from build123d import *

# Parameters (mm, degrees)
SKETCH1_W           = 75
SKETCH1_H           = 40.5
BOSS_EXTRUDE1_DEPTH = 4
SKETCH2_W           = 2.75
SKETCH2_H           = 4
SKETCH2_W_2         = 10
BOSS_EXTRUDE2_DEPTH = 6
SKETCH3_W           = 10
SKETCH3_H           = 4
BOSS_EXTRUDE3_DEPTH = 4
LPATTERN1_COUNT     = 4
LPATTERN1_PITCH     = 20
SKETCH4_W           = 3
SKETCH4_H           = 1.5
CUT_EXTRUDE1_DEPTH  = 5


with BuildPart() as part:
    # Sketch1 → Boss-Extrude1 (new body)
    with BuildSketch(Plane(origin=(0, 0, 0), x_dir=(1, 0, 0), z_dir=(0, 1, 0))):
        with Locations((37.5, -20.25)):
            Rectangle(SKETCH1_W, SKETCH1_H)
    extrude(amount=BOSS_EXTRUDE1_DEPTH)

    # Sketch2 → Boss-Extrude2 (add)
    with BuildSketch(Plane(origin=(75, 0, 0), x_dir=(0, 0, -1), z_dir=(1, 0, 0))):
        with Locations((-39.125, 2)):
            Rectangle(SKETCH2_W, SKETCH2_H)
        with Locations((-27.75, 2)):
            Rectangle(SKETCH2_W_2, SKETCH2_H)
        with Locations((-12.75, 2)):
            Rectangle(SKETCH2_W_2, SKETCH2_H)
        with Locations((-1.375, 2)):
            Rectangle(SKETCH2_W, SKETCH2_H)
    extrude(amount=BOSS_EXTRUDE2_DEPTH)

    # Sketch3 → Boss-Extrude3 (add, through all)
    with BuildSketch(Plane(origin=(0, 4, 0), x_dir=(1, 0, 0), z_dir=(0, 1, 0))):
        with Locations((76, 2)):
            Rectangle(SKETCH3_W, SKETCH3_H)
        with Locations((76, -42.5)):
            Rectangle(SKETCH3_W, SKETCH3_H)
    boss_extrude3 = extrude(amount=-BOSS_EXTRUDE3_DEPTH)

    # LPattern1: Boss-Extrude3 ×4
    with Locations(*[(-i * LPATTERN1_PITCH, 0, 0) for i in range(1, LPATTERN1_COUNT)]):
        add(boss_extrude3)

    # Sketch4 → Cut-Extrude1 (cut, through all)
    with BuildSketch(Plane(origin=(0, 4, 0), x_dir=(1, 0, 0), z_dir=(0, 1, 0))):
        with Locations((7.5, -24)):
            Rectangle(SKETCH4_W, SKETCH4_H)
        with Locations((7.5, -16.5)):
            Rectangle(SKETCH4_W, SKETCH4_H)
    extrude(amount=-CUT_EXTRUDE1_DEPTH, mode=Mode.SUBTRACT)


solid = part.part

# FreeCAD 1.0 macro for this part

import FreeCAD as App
import Part
import Sketcher

doc = App.newDocument("Part")
params = doc.addObject("Spreadsheet::Sheet", "Params")
for row, (alias, value) in enumerate([
    ("sketch1_width", "75 mm"),
    ("sketch1_height", "40.5 mm"),
    ("pad1_length", "4 mm"),
    ("sketch2_width", "4 mm"),
    ("sketch2_height", "10 mm"),
    ("sketch2_height2", "2.75 mm"),
    ("pad2_length", "6 mm"),
    ("sketch3_width", "10 mm"),
    ("sketch3_height", "4 mm"),
    ("pad3_length", "4 mm"),
    ("linearpattern_pitch", "20 mm"),
    ("sketch4_width", "3 mm"),
    ("sketch4_height", "1.5 mm"),
], start=1):
    params.set(f"A{row}", alias)
    params.set(f"B{row}", "=" + value)
    params.setAlias(f"B{row}", alias)

body = doc.addObject("PartDesign::Body", "Body")

sketch1 = body.newObject("Sketcher::SketchObject", "Sketch")
sketch1.AttachmentSupport = (doc.getObject("XZ_Plane"), [""])
sketch1.MapMode = "FlatFace"
sketch1.addGeometry([
    Part.LineSegment(App.Vector(0, 0, 0), App.Vector(0, 40.5, 0)),
    Part.LineSegment(App.Vector(0, 40.5, 0), App.Vector(75, 40.5, 0)),
    Part.LineSegment(App.Vector(75, 40.5, 0), App.Vector(75, 0, 0)),
    Part.LineSegment(App.Vector(75, 0, 0), App.Vector(0, 0, 0)),
], False)
sketch1.addConstraint([
    Sketcher.Constraint("Coincident", 0, 2, 1, 1),
    Sketcher.Constraint("Coincident", 1, 2, 2, 1),
    Sketcher.Constraint("Coincident", 2, 2, 3, 1),
    Sketcher.Constraint("Coincident", 3, 2, 0, 1),
    Sketcher.Constraint("Vertical", 0),
    Sketcher.Constraint("Horizontal", 1),
    Sketcher.Constraint("Vertical", 2),
    Sketcher.Constraint("Horizontal", 3),
    Sketcher.Constraint("Coincident", 3, 2, -1, 1),
    Sketcher.Constraint("DistanceX", 1, 1, 1, 2, 75.0),
    Sketcher.Constraint("DistanceY", 0, 1, 0, 2, 40.5),
])
sketch1.setExpression("Constraints[9]", "Params.sketch1_width")
sketch1.setExpression("Constraints[10]", "Params.sketch1_height")
pad1 = body.newObject("PartDesign::Pad", "Pad")
pad1.Profile = sketch1
pad1.setExpression("Length", "Params.pad1_length")
pad1.Reversed = True

sketch2 = body.newObject("Sketcher::SketchObject", "Sketch001")
sketch2.AttachmentSupport = (doc.getObject("YZ_Plane"), [""])
sketch2.MapMode = "FlatFace"
sketch2.AttachmentOffset = App.Placement(App.Vector(0, 0, 75), App.Rotation())
sketch2.addGeometry([
    Part.LineSegment(App.Vector(4, 40.5, 0), App.Vector(0, 40.5, 0)),
    Part.LineSegment(App.Vector(0, 40.5, 0), App.Vector(0, 37.75, 0)),
    Part.LineSegment(App.Vector(0, 37.75, 0), App.Vector(4, 37.75, 0)),
    Part.LineSegment(App.Vector(4, 37.75, 0), App.Vector(4, 40.5, 0)),
    Part.LineSegment(App.Vector(4, 32.75, 0), App.Vector(0, 32.75, 0)),
    Part.LineSegment(App.Vector(0, 32.75, 0), App.Vector(0, 22.75, 0)),
    Part.LineSegment(App.Vector(0, 22.75, 0), App.Vector(4, 22.75, 0)),
    Part.LineSegment(App.Vector(4, 22.75, 0), App.Vector(4, 32.75, 0)),
    Part.LineSegment(App.Vector(4, 17.75, 0), App.Vector(0, 17.75, 0)),
    Part.LineSegment(App.Vector(0, 17.75, 0), App.Vector(0, 7.75, 0)),
    Part.LineSegment(App.Vector(0, 7.75, 0), App.Vector(4, 7.75, 0)),
    Part.LineSegment(App.Vector(4, 7.75, 0), App.Vector(4, 17.75, 0)),
    Part.LineSegment(App.Vector(4, 2.75, 0), App.Vector(0, 2.75, 0)),
    Part.LineSegment(App.Vector(0, 2.75, 0), App.Vector(0, 0, 0)),
    Part.LineSegment(App.Vector(0, 0, 0), App.Vector(4, 0, 0)),
    Part.LineSegment(App.Vector(4, 0, 0), App.Vector(4, 2.75, 0)),
], False)
sketch2.addConstraint([
    Sketcher.Constraint("Coincident", 0, 2, 1, 1),
    Sketcher.Constraint("Coincident", 1, 2, 2, 1),
    Sketcher.Constraint("Coincident", 2, 2, 3, 1),
    Sketcher.Constraint("Coincident", 3, 2, 0, 1),
    Sketcher.Constraint("Coincident", 4, 2, 5, 1),
    Sketcher.Constraint("Coincident", 5, 2, 6, 1),
    Sketcher.Constraint("Coincident", 6, 2, 7, 1),
    Sketcher.Constraint("Coincident", 7, 2, 4, 1),
    Sketcher.Constraint("Coincident", 8, 2, 9, 1),
    Sketcher.Constraint("Coincident", 9, 2, 10, 1),
    Sketcher.Constraint("Coincident", 10, 2, 11, 1),
    Sketcher.Constraint("Coincident", 11, 2, 8, 1),
    Sketcher.Constraint("Coincident", 12, 2, 13, 1),
    Sketcher.Constraint("Coincident", 13, 2, 14, 1),
    Sketcher.Constraint("Coincident", 14, 2, 15, 1),
    Sketcher.Constraint("Coincident", 15, 2, 12, 1),
    Sketcher.Constraint("Horizontal", 0),
    Sketcher.Constraint("Vertical", 1),
    Sketcher.Constraint("Horizontal", 2),
    Sketcher.Constraint("Vertical", 3),
    Sketcher.Constraint("Horizontal", 4),
    Sketcher.Constraint("Vertical", 5),
    Sketcher.Constraint("Horizontal", 6),
    Sketcher.Constraint("Vertical", 7),
    Sketcher.Constraint("Horizontal", 8),
    Sketcher.Constraint("Vertical", 9),
    Sketcher.Constraint("Horizontal", 10),
    Sketcher.Constraint("Vertical", 11),
    Sketcher.Constraint("Horizontal", 12),
    Sketcher.Constraint("Vertical", 13),
    Sketcher.Constraint("Horizontal", 14),
    Sketcher.Constraint("Vertical", 15),
    Sketcher.Constraint("Coincident", 13, 2, -1, 1),
    Sketcher.Constraint("PointOnObject", 0, 2, -2),
    Sketcher.Constraint("PointOnObject", 4, 2, -2),
    Sketcher.Constraint("PointOnObject", 8, 2, -2),
    Sketcher.Constraint("Vertical", 3, 2, 6, 2),
    Sketcher.Constraint("Vertical", 7, 2, 10, 2),
    Sketcher.Constraint("Vertical", 11, 2, 14, 2),
    Sketcher.Constraint("Equal", 7, 9),
    Sketcher.Constraint("Equal", 3, 13),
    Sketcher.Constraint("DistanceX", 0, 2, 0, 1, 4.0),
    Sketcher.Constraint("DistanceY", 5, 2, 5, 1, 10.0),
    Sketcher.Constraint("DistanceY", 4, 2, 1, 2, 5.0),
    Sketcher.Constraint("DistanceY", 8, 2, 5, 2, 5.0),
    Sketcher.Constraint("DistanceY", 12, 2, 9, 2, 5.0),
    Sketcher.Constraint("DistanceY", 1, 2, 1, 1, 2.75),
])
sketch2.setExpression("Constraints[41]", "Params.sketch2_width")
sketch2.setExpression("Constraints[42]", "Params.sketch2_height")
sketch2.setExpression("Constraints[46]", "Params.sketch2_height2")
pad2 = body.newObject("PartDesign::Pad", "Pad001")
pad2.Profile = sketch2
pad2.setExpression("Length", "Params.pad2_length")

sketch3 = body.newObject("Sketcher::SketchObject", "Sketch002")
sketch3.AttachmentSupport = (doc.getObject("XZ_Plane"), [""])
sketch3.MapMode = "FlatFace"
sketch3.AttachmentOffset = App.Placement(App.Vector(0, 0, -4), App.Rotation())
sketch3.addGeometry([
    Part.LineSegment(App.Vector(71, -4, 0), App.Vector(71, 0, 0)),
    Part.LineSegment(App.Vector(71, 0, 0), App.Vector(81, 0, 0)),
    Part.LineSegment(App.Vector(81, 0, 0), App.Vector(81, -4, 0)),
    Part.LineSegment(App.Vector(81, -4, 0), App.Vector(71, -4, 0)),
    Part.LineSegment(App.Vector(71, 40.5, 0), App.Vector(71, 44.5, 0)),
    Part.LineSegment(App.Vector(71, 44.5, 0), App.Vector(81, 44.5, 0)),
    Part.LineSegment(App.Vector(81, 44.5, 0), App.Vector(81, 40.5, 0)),
    Part.LineSegment(App.Vector(81, 40.5, 0), App.Vector(71, 40.5, 0)),
], False)
sketch3.addConstraint([
    Sketcher.Constraint("Coincident", 0, 2, 1, 1),
    Sketcher.Constraint("Coincident", 1, 2, 2, 1),
    Sketcher.Constraint("Coincident", 2, 2, 3, 1),
    Sketcher.Constraint("Coincident", 3, 2, 0, 1),
    Sketcher.Constraint("Coincident", 4, 2, 5, 1),
    Sketcher.Constraint("Coincident", 5, 2, 6, 1),
    Sketcher.Constraint("Coincident", 6, 2, 7, 1),
    Sketcher.Constraint("Coincident", 7, 2, 4, 1),
    Sketcher.Constraint("Vertical", 0),
    Sketcher.Constraint("Horizontal", 1),
    Sketcher.Constraint("Vertical", 2),
    Sketcher.Constraint("Horizontal", 3),
    Sketcher.Constraint("Vertical", 4),
    Sketcher.Constraint("Horizontal", 5),
    Sketcher.Constraint("Vertical", 6),
    Sketcher.Constraint("Horizontal", 7),
    Sketcher.Constraint("PointOnObject", 0, 2, -1),
    Sketcher.Constraint("Vertical", 3, 2, 4, 2),
    Sketcher.Constraint("Vertical", 2, 2, 5, 2),
    Sketcher.Constraint("Equal", 2, 4),
    Sketcher.Constraint("DistanceX", 1, 1, 1, 2, 10.0),
    Sketcher.Constraint("DistanceY", 0, 1, 0, 2, 4.0),
    Sketcher.Constraint("DistanceX", -1, 1, 0, 2, 71.0),
    Sketcher.Constraint("DistanceY", -1, 1, 4, 2, 44.5),
])
sketch3.setExpression("Constraints[20]", "Params.sketch3_width")
sketch3.setExpression("Constraints[21]", "Params.sketch3_height")
pad3 = body.newObject("PartDesign::Pad", "Pad002")
pad3.Profile = sketch3
pad3.setExpression("Length", "Params.pad3_length")
doc.recompute()

linearpattern = body.newObject("PartDesign::LinearPattern", "LinearPattern")
linearpattern.Originals = [pad3]
linearpattern.Direction = (doc.getObject("X_Axis"), [""])
linearpattern.Mode = "offset"
linearpattern.setExpression("Offset", "Params.linearpattern_pitch")
linearpattern.Occurrences = 4
linearpattern.Reversed = True
body.Tip = linearpattern

sketch4 = body.newObject("Sketcher::SketchObject", "Sketch003")
sketch4.AttachmentSupport = (doc.getObject("XZ_Plane"), [""])
sketch4.MapMode = "FlatFace"
sketch4.AttachmentOffset = App.Placement(App.Vector(0, 0, -4), App.Rotation())
sketch4.addGeometry([
    Part.LineSegment(App.Vector(6, 23.25, 0), App.Vector(6, 24.75, 0)),
    Part.LineSegment(App.Vector(6, 24.75, 0), App.Vector(9, 24.75, 0)),
    Part.LineSegment(App.Vector(9, 24.75, 0), App.Vector(9, 23.25, 0)),
    Part.LineSegment(App.Vector(9, 23.25, 0), App.Vector(6, 23.25, 0)),
    Part.LineSegment(App.Vector(6, 15.75, 0), App.Vector(6, 17.25, 0)),
    Part.LineSegment(App.Vector(6, 17.25, 0), App.Vector(9, 17.25, 0)),
    Part.LineSegment(App.Vector(9, 17.25, 0), App.Vector(9, 15.75, 0)),
    Part.LineSegment(App.Vector(9, 15.75, 0), App.Vector(6, 15.75, 0)),
], False)
sketch4.addConstraint([
    Sketcher.Constraint("Coincident", 0, 2, 1, 1),
    Sketcher.Constraint("Coincident", 1, 2, 2, 1),
    Sketcher.Constraint("Coincident", 2, 2, 3, 1),
    Sketcher.Constraint("Coincident", 3, 2, 0, 1),
    Sketcher.Constraint("Coincident", 4, 2, 5, 1),
    Sketcher.Constraint("Coincident", 5, 2, 6, 1),
    Sketcher.Constraint("Coincident", 6, 2, 7, 1),
    Sketcher.Constraint("Coincident", 7, 2, 4, 1),
    Sketcher.Constraint("Vertical", 0),
    Sketcher.Constraint("Horizontal", 1),
    Sketcher.Constraint("Vertical", 2),
    Sketcher.Constraint("Horizontal", 3),
    Sketcher.Constraint("Vertical", 4),
    Sketcher.Constraint("Horizontal", 5),
    Sketcher.Constraint("Vertical", 6),
    Sketcher.Constraint("Horizontal", 7),
    Sketcher.Constraint("Vertical", 3, 2, 4, 2),
    Sketcher.Constraint("Vertical", 2, 2, 5, 2),
    Sketcher.Constraint("Equal", 2, 4),
    Sketcher.Constraint("DistanceX", 1, 1, 1, 2, 3.0),
    Sketcher.Constraint("DistanceY", 0, 1, 0, 2, 1.5),
    Sketcher.Constraint("DistanceX", -1, 1, 0, 2, 6.0),
    Sketcher.Constraint("DistanceY", 4, 2, 3, 2, 6.0),
    Sketcher.Constraint("DistanceY", -1, 1, 0, 2, 24.75),
])
sketch4.setExpression("Constraints[19]", "Params.sketch4_width")
sketch4.setExpression("Constraints[20]", "Params.sketch4_height")
pocket1 = body.newObject("PartDesign::Pocket", "Pocket")
pocket1.Profile = sketch4
pocket1.Type = "ThroughAll"
pocket1.Reversed = True

doc.recompute()
